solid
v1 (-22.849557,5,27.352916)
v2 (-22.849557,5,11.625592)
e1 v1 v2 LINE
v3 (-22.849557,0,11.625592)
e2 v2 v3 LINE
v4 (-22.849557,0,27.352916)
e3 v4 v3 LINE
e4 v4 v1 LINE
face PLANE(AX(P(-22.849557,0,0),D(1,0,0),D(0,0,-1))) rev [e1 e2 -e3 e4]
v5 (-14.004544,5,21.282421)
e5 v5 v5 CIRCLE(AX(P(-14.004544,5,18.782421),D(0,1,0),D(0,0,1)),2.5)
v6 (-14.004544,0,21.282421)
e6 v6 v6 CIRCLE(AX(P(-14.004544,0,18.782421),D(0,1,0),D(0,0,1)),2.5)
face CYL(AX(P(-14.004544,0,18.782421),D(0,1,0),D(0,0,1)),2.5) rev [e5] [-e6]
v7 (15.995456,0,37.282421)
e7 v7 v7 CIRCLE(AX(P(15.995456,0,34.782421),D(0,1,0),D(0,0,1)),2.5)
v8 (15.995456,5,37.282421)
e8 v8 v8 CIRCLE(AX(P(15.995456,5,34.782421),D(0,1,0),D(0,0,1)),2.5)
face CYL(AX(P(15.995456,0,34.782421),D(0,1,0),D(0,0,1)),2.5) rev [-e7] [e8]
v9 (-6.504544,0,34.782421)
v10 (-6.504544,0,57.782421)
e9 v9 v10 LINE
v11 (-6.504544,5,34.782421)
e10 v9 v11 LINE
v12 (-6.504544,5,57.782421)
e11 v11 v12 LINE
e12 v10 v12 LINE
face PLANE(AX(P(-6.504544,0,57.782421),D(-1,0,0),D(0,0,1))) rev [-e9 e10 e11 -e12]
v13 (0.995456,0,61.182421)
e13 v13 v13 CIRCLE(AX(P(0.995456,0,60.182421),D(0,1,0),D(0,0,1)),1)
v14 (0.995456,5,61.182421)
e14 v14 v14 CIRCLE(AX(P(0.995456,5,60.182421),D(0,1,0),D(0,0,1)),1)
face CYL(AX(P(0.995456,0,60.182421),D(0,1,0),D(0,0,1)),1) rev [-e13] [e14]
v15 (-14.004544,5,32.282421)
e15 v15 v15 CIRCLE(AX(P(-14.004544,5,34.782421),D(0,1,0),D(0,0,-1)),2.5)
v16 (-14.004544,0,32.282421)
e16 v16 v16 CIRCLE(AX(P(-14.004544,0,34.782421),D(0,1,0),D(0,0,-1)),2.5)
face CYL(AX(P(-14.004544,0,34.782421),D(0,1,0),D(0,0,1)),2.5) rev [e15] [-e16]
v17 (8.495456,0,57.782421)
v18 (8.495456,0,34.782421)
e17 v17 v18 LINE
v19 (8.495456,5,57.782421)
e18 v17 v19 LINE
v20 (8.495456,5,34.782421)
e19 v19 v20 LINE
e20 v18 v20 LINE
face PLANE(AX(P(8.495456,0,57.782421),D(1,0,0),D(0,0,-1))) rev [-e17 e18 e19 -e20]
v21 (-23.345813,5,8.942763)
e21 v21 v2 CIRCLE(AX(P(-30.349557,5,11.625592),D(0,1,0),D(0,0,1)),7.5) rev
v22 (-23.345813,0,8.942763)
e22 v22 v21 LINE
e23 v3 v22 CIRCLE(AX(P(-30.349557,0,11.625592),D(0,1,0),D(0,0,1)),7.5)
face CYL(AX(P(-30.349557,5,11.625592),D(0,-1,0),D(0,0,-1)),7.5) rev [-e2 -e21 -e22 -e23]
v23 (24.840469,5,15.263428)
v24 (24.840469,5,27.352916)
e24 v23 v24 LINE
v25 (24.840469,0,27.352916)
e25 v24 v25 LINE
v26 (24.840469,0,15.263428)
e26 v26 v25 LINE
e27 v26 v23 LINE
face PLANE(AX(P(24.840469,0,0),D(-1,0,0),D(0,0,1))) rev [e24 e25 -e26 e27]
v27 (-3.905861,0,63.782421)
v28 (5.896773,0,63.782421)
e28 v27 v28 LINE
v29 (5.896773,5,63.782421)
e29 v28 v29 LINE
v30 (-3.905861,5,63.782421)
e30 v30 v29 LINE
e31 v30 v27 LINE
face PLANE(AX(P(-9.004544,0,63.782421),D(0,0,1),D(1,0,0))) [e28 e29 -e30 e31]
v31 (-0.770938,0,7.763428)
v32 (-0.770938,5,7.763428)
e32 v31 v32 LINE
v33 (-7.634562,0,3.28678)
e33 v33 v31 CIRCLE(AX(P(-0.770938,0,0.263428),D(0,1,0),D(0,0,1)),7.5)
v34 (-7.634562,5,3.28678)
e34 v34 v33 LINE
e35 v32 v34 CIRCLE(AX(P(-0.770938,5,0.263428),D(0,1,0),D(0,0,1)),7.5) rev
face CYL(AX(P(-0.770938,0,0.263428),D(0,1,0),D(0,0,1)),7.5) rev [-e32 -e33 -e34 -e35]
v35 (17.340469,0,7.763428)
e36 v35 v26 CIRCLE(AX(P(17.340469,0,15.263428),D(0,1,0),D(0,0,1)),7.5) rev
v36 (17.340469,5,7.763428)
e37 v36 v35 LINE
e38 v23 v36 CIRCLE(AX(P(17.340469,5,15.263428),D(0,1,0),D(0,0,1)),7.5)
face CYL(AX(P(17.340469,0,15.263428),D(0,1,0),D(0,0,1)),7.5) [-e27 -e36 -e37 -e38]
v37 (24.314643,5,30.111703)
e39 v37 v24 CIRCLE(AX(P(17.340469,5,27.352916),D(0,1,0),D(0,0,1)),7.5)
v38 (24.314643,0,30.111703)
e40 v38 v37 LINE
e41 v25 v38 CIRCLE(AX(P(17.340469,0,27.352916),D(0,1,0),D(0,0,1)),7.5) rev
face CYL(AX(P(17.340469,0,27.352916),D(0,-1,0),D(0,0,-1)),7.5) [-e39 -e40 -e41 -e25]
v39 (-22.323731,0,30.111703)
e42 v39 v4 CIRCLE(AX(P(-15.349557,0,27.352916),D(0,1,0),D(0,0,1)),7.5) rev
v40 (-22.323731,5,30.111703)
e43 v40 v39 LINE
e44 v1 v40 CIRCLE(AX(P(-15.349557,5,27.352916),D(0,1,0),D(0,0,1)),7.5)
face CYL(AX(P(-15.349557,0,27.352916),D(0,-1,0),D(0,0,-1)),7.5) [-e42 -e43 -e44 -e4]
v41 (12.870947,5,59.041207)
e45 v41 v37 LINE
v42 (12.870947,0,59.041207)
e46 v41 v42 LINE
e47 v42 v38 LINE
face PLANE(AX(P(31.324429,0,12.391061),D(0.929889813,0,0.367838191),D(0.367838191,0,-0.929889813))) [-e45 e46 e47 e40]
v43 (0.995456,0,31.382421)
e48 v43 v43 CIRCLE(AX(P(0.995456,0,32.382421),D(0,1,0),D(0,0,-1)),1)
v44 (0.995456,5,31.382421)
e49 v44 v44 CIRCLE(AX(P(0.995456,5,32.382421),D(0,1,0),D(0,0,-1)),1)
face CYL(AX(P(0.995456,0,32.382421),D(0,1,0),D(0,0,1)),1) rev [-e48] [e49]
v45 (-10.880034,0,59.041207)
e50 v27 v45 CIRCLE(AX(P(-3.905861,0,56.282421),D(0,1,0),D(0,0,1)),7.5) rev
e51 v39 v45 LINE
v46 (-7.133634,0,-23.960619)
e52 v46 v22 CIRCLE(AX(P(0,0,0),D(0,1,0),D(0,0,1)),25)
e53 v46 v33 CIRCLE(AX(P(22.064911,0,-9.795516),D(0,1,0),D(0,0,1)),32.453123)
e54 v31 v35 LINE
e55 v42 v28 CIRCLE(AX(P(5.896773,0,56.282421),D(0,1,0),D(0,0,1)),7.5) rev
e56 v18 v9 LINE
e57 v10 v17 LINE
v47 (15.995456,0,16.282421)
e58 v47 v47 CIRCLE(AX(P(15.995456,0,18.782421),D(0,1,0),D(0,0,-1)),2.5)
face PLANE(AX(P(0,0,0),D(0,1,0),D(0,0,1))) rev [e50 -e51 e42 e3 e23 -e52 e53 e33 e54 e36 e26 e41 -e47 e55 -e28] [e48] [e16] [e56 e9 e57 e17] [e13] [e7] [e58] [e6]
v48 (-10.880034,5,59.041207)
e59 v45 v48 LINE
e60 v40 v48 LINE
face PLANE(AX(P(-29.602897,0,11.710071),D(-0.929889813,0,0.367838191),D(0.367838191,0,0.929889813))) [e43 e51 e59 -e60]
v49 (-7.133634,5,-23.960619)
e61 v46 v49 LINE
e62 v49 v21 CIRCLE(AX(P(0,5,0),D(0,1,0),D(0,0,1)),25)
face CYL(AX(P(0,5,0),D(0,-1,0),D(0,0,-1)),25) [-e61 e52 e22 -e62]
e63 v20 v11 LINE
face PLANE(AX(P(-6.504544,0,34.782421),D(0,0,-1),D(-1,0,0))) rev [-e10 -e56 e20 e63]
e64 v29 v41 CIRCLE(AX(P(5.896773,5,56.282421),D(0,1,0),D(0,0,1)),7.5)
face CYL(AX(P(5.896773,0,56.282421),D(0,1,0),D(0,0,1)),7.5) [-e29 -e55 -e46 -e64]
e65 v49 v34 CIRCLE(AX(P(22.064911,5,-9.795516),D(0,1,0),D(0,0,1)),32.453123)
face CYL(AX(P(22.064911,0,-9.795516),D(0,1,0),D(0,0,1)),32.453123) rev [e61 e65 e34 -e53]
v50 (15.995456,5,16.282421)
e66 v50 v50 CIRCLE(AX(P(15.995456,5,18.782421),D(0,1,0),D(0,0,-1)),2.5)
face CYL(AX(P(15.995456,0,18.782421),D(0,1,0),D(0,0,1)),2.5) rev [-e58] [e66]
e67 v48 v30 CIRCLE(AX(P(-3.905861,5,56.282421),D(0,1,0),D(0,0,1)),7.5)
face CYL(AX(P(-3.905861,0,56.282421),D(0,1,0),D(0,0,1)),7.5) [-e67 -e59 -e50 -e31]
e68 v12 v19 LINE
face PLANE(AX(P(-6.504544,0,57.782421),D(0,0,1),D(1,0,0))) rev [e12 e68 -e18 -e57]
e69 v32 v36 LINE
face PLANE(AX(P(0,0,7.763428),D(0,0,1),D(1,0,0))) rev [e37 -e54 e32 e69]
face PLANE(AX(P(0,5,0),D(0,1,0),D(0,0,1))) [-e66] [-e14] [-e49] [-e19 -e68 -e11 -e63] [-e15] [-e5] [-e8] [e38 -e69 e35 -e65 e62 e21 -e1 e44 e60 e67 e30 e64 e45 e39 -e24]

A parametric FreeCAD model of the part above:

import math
import FreeCAD as App
import Part
import Sketcher


def edges_at(feature, points):
    """Names of the edges that pass closest to the given points."""
    edges = feature.Shape.Edges
    near = lambda p: min(range(len(edges)), key=lambda i: edges[i].distToShape(Part.Vertex(*p))[0])
    return sorted({f"Edge{near(p) + 1}" for p in points})

doc = App.newDocument("Part")
body = doc.addObject("PartDesign::Body", "Body")

sketch1 = body.newObject("Sketcher::SketchObject", "Sketch")
sketch1.AttachmentSupport = (doc.getObject("XZ_Plane"), [""])
sketch1.MapMode = "FlatFace"
sketch1.addGeometry(Part.Circle(App.Vector(0, 0, 0), App.Vector(0, 0, 1), 25), False)
sketch1.addConstraint([
    Sketcher.Constraint("Coincident", 0, 3, -1, 1),
    Sketcher.Constraint("Diameter", 0, 50.0),
])
pad1 = body.newObject("PartDesign::Pad", "Pad")
pad1.Profile = sketch1
pad1.Length = 5
pad1.Reversed = True

sketch2 = body.newObject("Sketcher::SketchObject", "Sketch001")
sketch2.AttachmentSupport = (doc.getObject("XZ_Plane"), [""])
sketch2.MapMode = "FlatFace"
sketch2.AttachmentOffset = App.Placement(App.Vector(0, 0, -5), App.Rotation())
sketch2.addGeometry([
    Part.LineSegment(App.Vector(49.553686, -140.81027, 0), App.Vector(-7.133634, -23.960619, 0)),
    Part.ArcOfCircle(Part.Circle(App.Vector(22.064911, -9.795516, 0), App.Vector(0, 0, 1), 32.453123), math.radians(106.243782), math.radians(205.879434)),
    Part.LineSegment(App.Vector(12.986967, 21.362085, 0), App.Vector(137.676564, 57.691107, 0)),
    Part.LineSegment(App.Vector(137.676564, 57.691107, 0), App.Vector(375.081897, -47.702827, 0)),
    Part.LineSegment(App.Vector(375.081897, -47.702827, 0), App.Vector(286.959019, -246.204205, 0)),
    Part.LineSegment(App.Vector(286.959019, -246.204205, 0), App.Vector(49.553686, -140.81027, 0)),
], False)
sketch2.addConstraint([
    Sketcher.Constraint("Coincident", 0, 2, 1, 2),
    Sketcher.Constraint("Coincident", 1, 1, 2, 1),
    Sketcher.Constraint("Coincident", 2, 2, 3, 1),
    Sketcher.Constraint("Coincident", 3, 2, 4, 1),
    Sketcher.Constraint("Coincident", 4, 2, 5, 1),
    Sketcher.Constraint("Coincident", 5, 2, 0, 1),
    Sketcher.Constraint("Radius", 1, 32.453123),
    Sketcher.Constraint("DistanceY", 1, 3, 1, 1, 31.157601),
    Sketcher.Constraint("DistanceX", 0, 2, 1, 1, 20.120602),
    Sketcher.Constraint("DistanceX", 0, 2, 2, 2, 144.810198),
    Sketcher.Constraint("Distance", 3, 259.748289),
    Sketcher.Constraint("Distance", 4, 217.182961),
    Sketcher.Constraint("Distance", 5, 259.748289),
    Sketcher.Constraint("DistanceX", -1, 1, 1, 3, 22.064911),
    Sketcher.Constraint("DistanceY", 0, 2, -1, 1, 23.960619),
    Sketcher.Constraint("DistanceX", -1, 1, 4, 2, 286.959019),
    Sketcher.Constraint("DistanceY", 5, 2, -1, 1, 140.81027),
    Sketcher.Constraint("DistanceY", 1, 1, 2, 2, 36.329022),
    Sketcher.Constraint("DistanceY", 3, 2, 1, 3, 37.907311),
])
pocket1 = body.newObject("PartDesign::Pocket", "Pocket")
pocket1.Profile = sketch2
pocket1.Length = 5
pocket1.Reversed = True

sketch3 = body.newObject("Sketcher::SketchObject", "Sketch002")
sketch3.AttachmentSupport = (doc.getObject("XZ_Plane"), [""])
sketch3.MapMode = "FlatFace"
sketch3.AttachmentOffset = App.Placement(App.Vector(0, 0, -5), App.Rotation())
sketch3.addGeometry([
    Part.LineSegment(App.Vector(24.840469, 7.763428, 0), App.Vector(-5.227737, 7.763428, 0)),
    Part.ArcOfCircle(Part.Circle(App.Vector(22.064911, -9.795516, 0), App.Vector(0, 0, 1), 32.453123), math.radians(106.243782), math.radians(147.244472)),
    Part.ArcOfCircle(Part.Circle(App.Vector(0, 0, 0), App.Vector(0, 0, 1), 25), math.radians(58.702711), math.radians(156.061608)),
    Part.LineSegment(App.Vector(-22.849557, 10.143853, 0), App.Vector(-22.849557, 28.782421, 0)),
    Part.LineSegment(App.Vector(-22.849557, 28.782421, 0), App.Vector(24.840469, 28.782421, 0)),
    Part.LineSegment(App.Vector(24.840469, 28.782421, 0), App.Vector(24.840469, 7.763428, 0)),
], False)
sketch3.addConstraint([
    Sketcher.Constraint("Coincident", 0, 2, 1, 2),
    Sketcher.Constraint("Coincident", 1, 1, 2, 1),
    Sketcher.Constraint("Coincident", 2, 2, 3, 1),
    Sketcher.Constraint("Coincident", 3, 2, 4, 1),
    Sketcher.Constraint("Coincident", 4, 2, 5, 1),
    Sketcher.Constraint("Coincident", 5, 2, 0, 1),
    Sketcher.Constraint("Horizontal", 0),
    Sketcher.Constraint("Vertical", 3),
    Sketcher.Constraint("Horizontal", 4),
    Sketcher.Constraint("Vertical", 5),
    Sketcher.Constraint("Coincident", 2, 3, -1, 1),
    Sketcher.Constraint("Radius", 2, 25.0),
    Sketcher.Constraint("Radius", 1, 32.453123),
    Sketcher.Constraint("DistanceY", 3, 1, 3, 2, 18.638568),
    Sketcher.Constraint("DistanceY", 1, 3, 1, 1, 31.157601),
    Sketcher.Constraint("DistanceX", 0, 2, 0, 1, 30.068207),
    Sketcher.Constraint("DistanceX", 4, 1, 4, 2, 47.690026),
    Sketcher.Constraint("DistanceY", 5, 2, 5, 1, 21.018993),
    Sketcher.Constraint("DistanceX", -1, 1, 1, 3, 22.064911),
])
pad2 = body.newObject("PartDesign::Pad", "Pad001")
pad2.Profile = sketch3
pad2.Length = 5

sketch4 = body.newObject("Sketcher::SketchObject", "Sketch003")
sketch4.AttachmentSupport = (doc.getObject("XZ_Plane"), [""])
sketch4.MapMode = "FlatFace"
sketch4.AttachmentOffset = App.Placement(App.Vector(0, 0, -5), App.Rotation())
sketch4.addGeometry([
    Part.LineSegment(App.Vector(-9.004544, 28.782421, 0), App.Vector(-9.004544, 63.782421, 0)),
    Part.LineSegment(App.Vector(-9.004544, 63.782421, 0), App.Vector(10.995456, 63.782421, 0)),
    Part.LineSegment(App.Vector(10.995456, 63.782421, 0), App.Vector(10.995456, 28.782421, 0)),
    Part.LineSegment(App.Vector(10.995456, 28.782421, 0), App.Vector(-9.004544, 28.782421, 0)),
    Part.Circle(App.Vector(0.995456, 60.182421, 0), App.Vector(0, 0, 1), 1),
    Part.LineSegment(App.Vector(8.495456, 57.782421, 0), App.Vector(-6.504544, 57.782421, 0)),
    Part.LineSegment(App.Vector(-6.504544, 57.782421, 0), App.Vector(-6.504544, 34.782421, 0)),
    Part.LineSegment(App.Vector(-6.504544, 34.782421, 0), App.Vector(8.495456, 34.782421, 0)),
    Part.LineSegment(App.Vector(8.495456, 34.782421, 0), App.Vector(8.495456, 57.782421, 0)),
    Part.Circle(App.Vector(0.995456, 32.382421, 0), App.Vector(0, 0, 1), 1),
], False)
sketch4.addConstraint([
    Sketcher.Constraint("Coincident", 0, 2, 1, 1),
    Sketcher.Constraint("Coincident", 1, 2, 2, 1),
    Sketcher.Constraint("Coincident", 2, 2, 3, 1),
    Sketcher.Constraint("Coincident", 3, 2, 0, 1),
    Sketcher.Constraint("Coincident", 5, 2, 6, 1),
    Sketcher.Constraint("Coincident", 6, 2, 7, 1),
    Sketcher.Constraint("Coincident", 7, 2, 8, 1),
    Sketcher.Constraint("Coincident", 8, 2, 5, 1),
    Sketcher.Constraint("Vertical", 0),
    Sketcher.Constraint("Horizontal", 1),
    Sketcher.Constraint("Vertical", 2),
    Sketcher.Constraint("Horizontal", 3),
    Sketcher.Constraint("Horizontal", 5),
    Sketcher.Constraint("Vertical", 6),
    Sketcher.Constraint("Horizontal", 7),
    Sketcher.Constraint("Vertical", 8),
    Sketcher.Constraint("Equal", 4, 9),
    Sketcher.Constraint("Vertical", 4, 3, 9, 3),
    Sketcher.Constraint("Diameter", 4, 2.0),
    Sketcher.Constraint("DistanceX", 1, 1, 1, 2, 20.0),
    Sketcher.Constraint("DistanceX", 5, 2, 5, 1, 15.0),
    Sketcher.Constraint("DistanceY", 0, 1, 0, 2, 35.0),
    Sketcher.Constraint("DistanceY", 6, 2, 6, 1, 23.0),
    Sketcher.Constraint("DistanceX", 0, 2, 4, 3, 10.0),
    Sketcher.Constraint("DistanceY", 5, 2, 0, 2, 6.0),
    Sketcher.Constraint("DistanceY", 9, 3, 4, 3, 27.8),
    Sketcher.Constraint("DistanceY", 4, 3, 0, 2, 3.6),
    Sketcher.Constraint("DistanceX", 0, 2, 5, 2, 2.5),
    Sketcher.Constraint("DistanceY", -1, 1, 4, 3, 60.182421),
    Sketcher.Constraint("DistanceX", -1, 1, 4, 3, 0.995456),
])
pad3 = body.newObject("PartDesign::Pad", "Pad002")
pad3.Profile = sketch4
pad3.Length = 5

sketch5 = body.newObject("Sketcher::SketchObject", "Sketch004")
sketch5.AttachmentSupport = (doc.getObject("XZ_Plane"), [""])
sketch5.MapMode = "FlatFace"
sketch5.AttachmentOffset = App.Placement(App.Vector(0, 0, -5), App.Rotation())
sketch5.addGeometry([
    Part.LineSegment(App.Vector(-22.849557, 28.782421, 0), App.Vector(-9.004544, 63.782421, 0)),
    Part.LineSegment(App.Vector(-9.004544, 63.782421, 0), App.Vector(-9.004544, 28.782421, 0)),
    Part.LineSegment(App.Vector(-9.004544, 28.782421, 0), App.Vector(-22.849557, 28.782421, 0)),
    Part.LineSegment(App.Vector(10.995456, 63.782421, 0), App.Vector(24.840469, 28.782421, 0)),
    Part.LineSegment(App.Vector(24.840469, 28.782421, 0), App.Vector(10.995456, 28.782421, 0)),
    Part.LineSegment(App.Vector(10.995456, 28.782421, 0), App.Vector(10.995456, 63.782421, 0)),
], False)
sketch5.addConstraint([
    Sketcher.Constraint("Coincident", 0, 2, 1, 1),
    Sketcher.Constraint("Coincident", 1, 2, 2, 1),
    Sketcher.Constraint("Coincident", 2, 2, 0, 1),
    Sketcher.Constraint("Coincident", 3, 2, 4, 1),
    Sketcher.Constraint("Coincident", 4, 2, 5, 1),
    Sketcher.Constraint("Coincident", 5, 2, 3, 1),
    Sketcher.Constraint("Vertical", 1),
    Sketcher.Constraint("Horizontal", 2),
    Sketcher.Constraint("Horizontal", 4),
    Sketcher.Constraint("Vertical", 5),
    Sketcher.Constraint("Horizontal", 2, 2, 3, 2),
    Sketcher.Constraint("Horizontal", 0, 2, 5, 2),
    Sketcher.Constraint("Equal", 2, 4),
    Sketcher.Constraint("DistanceY", 1, 2, 1, 1, 35.0),
    Sketcher.Constraint("DistanceX", 1, 2, 4, 2, 20.0),
    Sketcher.Constraint("Distance", 0, 37.638868),
    Sketcher.Constraint("DistanceY", -1, 1, 0, 2, 63.782421),
    Sketcher.Constraint("DistanceX", -1, 1, 3, 2, 24.840469),
])
pad4 = body.newObject("PartDesign::Pad", "Pad003")
pad4.Profile = sketch5
pad4.Length = 5

sketch6 = body.newObject("Sketcher::SketchObject", "Sketch005")
sketch6.AttachmentSupport = (doc.getObject("XZ_Plane"), [""])
sketch6.MapMode = "FlatFace"
sketch6.AttachmentOffset = App.Placement(App.Vector(0, 0, -5), App.Rotation())
sketch6.addGeometry([
    Part.Circle(App.Vector(15.995456, 34.782421, 0), App.Vector(0, 0, 1), 2.5),
    Part.Circle(App.Vector(-14.004544, 34.782421, 0), App.Vector(0, 0, 1), 2.5),
    Part.Circle(App.Vector(15.995456, 18.782421, 0), App.Vector(0, 0, 1), 2.5),
    Part.Circle(App.Vector(-14.004544, 18.782421, 0), App.Vector(0, 0, 1), 2.5),
], False)
sketch6.addConstraint([
    Sketcher.Constraint("Equal", 0, 1),
    Sketcher.Constraint("Equal", 1, 2),
    Sketcher.Constraint("Equal", 2, 3),
    Sketcher.Constraint("Horizontal", 0, 3, 1, 3),
    Sketcher.Constraint("Horizontal", 2, 3, 3, 3),
    Sketcher.Constraint("Vertical", 0, 3, 2, 3),
    Sketcher.Constraint("Vertical", 1, 3, 3, 3),
    Sketcher.Constraint("Diameter", 0, 5.0),
    Sketcher.Constraint("DistanceX", 1, 3, 0, 3, 30.0),
    Sketcher.Constraint("DistanceY", 2, 3, 0, 3, 16.0),
    Sketcher.Constraint("DistanceY", -1, 1, 0, 3, 34.782421),
    Sketcher.Constraint("DistanceX", -1, 1, 0, 3, 15.995456),
])
pocket2 = body.newObject("PartDesign::Pocket", "Pocket001")
pocket2.Profile = sketch6
pocket2.Length = 5
pocket2.Reversed = True
doc.recompute()

fillet = body.newObject("PartDesign::Fillet", "Fillet")
fillet.Base = (pocket2, edges_at(pocket2, [
    (-22.85, 2.5, 28.782),
    (-22.85, 2.5, 10.144),
    (-5.228, 2.5, 7.763),
    (24.84, 2.5, 7.763),
    (24.84, 2.5, 28.782),
    (10.995, 2.5, 63.782),
    (-9.005, 2.5, 63.782),
]))
fillet.Radius = 7.5

doc.recompute()
